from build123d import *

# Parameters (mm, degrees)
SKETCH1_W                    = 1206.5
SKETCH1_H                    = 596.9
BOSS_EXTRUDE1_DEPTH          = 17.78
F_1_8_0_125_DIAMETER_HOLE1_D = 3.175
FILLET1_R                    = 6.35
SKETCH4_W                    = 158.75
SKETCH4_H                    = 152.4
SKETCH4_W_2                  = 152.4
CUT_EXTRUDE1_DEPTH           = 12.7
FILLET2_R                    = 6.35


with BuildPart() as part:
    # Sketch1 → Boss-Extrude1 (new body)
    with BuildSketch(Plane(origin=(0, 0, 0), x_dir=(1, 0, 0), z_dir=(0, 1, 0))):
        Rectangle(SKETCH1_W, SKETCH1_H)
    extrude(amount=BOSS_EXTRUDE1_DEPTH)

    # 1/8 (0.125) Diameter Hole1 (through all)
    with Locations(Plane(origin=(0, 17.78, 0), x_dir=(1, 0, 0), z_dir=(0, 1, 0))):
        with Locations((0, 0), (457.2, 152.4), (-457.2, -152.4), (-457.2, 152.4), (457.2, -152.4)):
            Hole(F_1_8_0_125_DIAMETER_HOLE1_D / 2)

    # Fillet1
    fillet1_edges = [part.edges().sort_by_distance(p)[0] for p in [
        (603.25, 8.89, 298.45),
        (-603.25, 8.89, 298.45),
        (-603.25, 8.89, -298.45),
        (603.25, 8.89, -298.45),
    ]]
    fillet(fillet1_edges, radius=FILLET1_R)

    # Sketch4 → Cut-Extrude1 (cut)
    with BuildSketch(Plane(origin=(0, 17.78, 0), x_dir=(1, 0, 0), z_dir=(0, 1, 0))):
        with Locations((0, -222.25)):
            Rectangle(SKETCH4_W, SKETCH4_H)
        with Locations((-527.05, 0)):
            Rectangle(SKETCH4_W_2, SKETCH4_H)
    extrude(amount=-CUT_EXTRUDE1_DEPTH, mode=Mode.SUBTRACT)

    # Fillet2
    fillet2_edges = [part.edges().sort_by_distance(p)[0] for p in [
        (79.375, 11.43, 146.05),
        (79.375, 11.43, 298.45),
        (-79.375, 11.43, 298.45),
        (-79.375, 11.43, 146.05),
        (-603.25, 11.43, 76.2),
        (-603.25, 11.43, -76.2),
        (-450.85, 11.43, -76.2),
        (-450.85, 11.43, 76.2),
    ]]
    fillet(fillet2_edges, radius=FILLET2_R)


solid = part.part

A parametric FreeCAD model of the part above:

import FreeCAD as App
import Part
import Sketcher
from FreeCAD import Vector
Q = App.Units.Quantity


def edges_at(feature, points):
    """Names of the edges that pass closest to the given points."""
    edges = feature.Shape.Edges
    near = lambda p: min(range(len(edges)), key=lambda i: edges[i].distToShape(Part.Vertex(*p))[0])
    return sorted({f"Edge{near(p) + 1}" for p in points})

doc = App.newDocument("Part")
body = doc.addObject("PartDesign::Body", "Body")

sketch1 = doc.addObject("Sketcher::SketchObject", "Sketch")
body.addObject(sketch1)
sketch1.AttachmentSupport = (doc.XZ_Plane, [""])
sketch1.MapMode = "FlatFace"
sketch1.addGeometry([
    Part.LineSegment(Vector(-603.25, -298.45, 0), Vector(-603.25, 298.45, 0)),
    Part.LineSegment(Vector(-603.25, 298.45, 0), Vector(603.25, 298.45, 0)),
    Part.LineSegment(Vector(603.25, 298.45, 0), Vector(603.25, -298.45, 0)),
    Part.LineSegment(Vector(603.25, -298.45, 0), Vector(-603.25, -298.45, 0)),
], False)
sketch1.addConstraint([
    Sketcher.Constraint("Coincident", 0, 2, 1, 1),
    Sketcher.Constraint("Coincident", 1, 2, 2, 1),
    Sketcher.Constraint("Coincident", 2, 2, 3, 1),
    Sketcher.Constraint("Coincident", 3, 2, 0, 1),
    Sketcher.Constraint("Vertical", 0),
    Sketcher.Constraint("Horizontal", 1),
    Sketcher.Constraint("Vertical", 2),
    Sketcher.Constraint("Horizontal", 3),
    Sketcher.Constraint("Symmetric", 0, 2, 2, 2, -1, 1),
    Sketcher.Constraint("DistanceX", 1, 1, 1, 2, Q("47.5 in")),
    Sketcher.Constraint("DistanceY", 0, 1, 0, 2, Q("23.5 in")),
])
pad1 = doc.addObject("PartDesign::Pad", "Pad")
body.addObject(pad1)
pad1.Profile = sketch1
pad1.Length = Q("0.7 in")
pad1.Reversed = True

sketch2 = doc.addObject("Sketcher::SketchObject", "Sketch001")
body.addObject(sketch2)
sketch2.AttachmentSupport = (doc.XZ_Plane, [""])
sketch2.MapMode = "FlatFace"
sketch2.AttachmentOffset = App.Placement(Vector(0, 0, -0.7 * 25.4), App.Rotation())
sketch2.addGeometry([
    Part.Circle(Vector(0, 0, 0), Vector(0, 0, 1), 1.5875),
    Part.Circle(Vector(457.2, -152.4, 0), Vector(0, 0, 1), 1.5875),
    Part.Circle(Vector(-457.2, 152.4, 0), Vector(0, 0, 1), 1.5875),
    Part.Circle(Vector(-457.2, -152.4, 0), Vector(0, 0, 1), 1.5875),
    Part.Circle(Vector(457.2, 152.4, 0), Vector(0, 0, 1), 1.5875),
], False)
sketch2.addConstraint([
    Sketcher.Constraint("Coincident", 0, 3, -1, 1),
    Sketcher.Constraint("Equal", 0, 1),
    Sketcher.Constraint("Equal", 1, 2),
    Sketcher.Constraint("Equal", 2, 3),
    Sketcher.Constraint("Equal", 3, 4),
    Sketcher.Constraint("Symmetric", 1, 3, 2, 3, -1, 1),
    Sketcher.Constraint("Symmetric", 3, 3, 4, 3, -1, 1),
    Sketcher.Constraint("Symmetric", 1, 3, 3, 3, -2),
    Sketcher.Constraint("Diameter", 0, Q("0.125 in")),
    Sketcher.Constraint("DistanceX", -1, 1, 1, 3, Q("18 in")),
    Sketcher.Constraint("DistanceY", 1, 3, -1, 1, Q("6 in")),
])
doc.recompute()
hole = doc.addObject("PartDesign::Hole", "Hole")
body.addObject(hole)
hole.Profile = sketch2
hole.ThreadType = "None"
hole.Diameter = Q("0.125 in")
hole.DepthType = "ThroughAll"
hole.Reversed = True
doc.recompute()

fillet = doc.addObject("PartDesign::Fillet", "Fillet")
body.addObject(fillet)
fillet.Base = (hole, edges_at(hole, [
    (603.25, 8.89, 298.45),
    (-603.25, 8.89, 298.45),
    (-603.25, 8.89, -298.45),
    (603.25, 8.89, -298.45),
]))
fillet.Radius = Q("0.25 in")

sketch3 = doc.addObject("Sketcher::SketchObject", "Sketch002")
body.addObject(sketch3)
sketch3.AttachmentSupport = (doc.XZ_Plane, [""])
sketch3.MapMode = "FlatFace"
sketch3.AttachmentOffset = App.Placement(Vector(0, 0, -0.7 * 25.4), App.Rotation())
sketch3.addGeometry([
    Part.LineSegment(Vector(-79.375, 146.05, 0), Vector(-79.375, 298.45, 0)),
    Part.LineSegment(Vector(-79.375, 298.45, 0), Vector(79.375, 298.45, 0)),
    Part.LineSegment(Vector(79.375, 298.45, 0), Vector(79.375, 146.05, 0)),
    Part.LineSegment(Vector(79.375, 146.05, 0), Vector(-79.375, 146.05, 0)),
    Part.LineSegment(Vector(-603.25, -76.2, 0), Vector(-603.25, 76.2, 0)),
    Part.LineSegment(Vector(-603.25, 76.2, 0), Vector(-450.85, 76.2, 0)),
    Part.LineSegment(Vector(-450.85, 76.2, 0), Vector(-450.85, -76.2, 0)),
    Part.LineSegment(Vector(-450.85, -76.2, 0), Vector(-603.25, -76.2, 0)),
], False)
sketch3.addConstraint([
    Sketcher.Constraint("Coincident", 0, 2, 1, 1),
    Sketcher.Constraint("Coincident", 1, 2, 2, 1),
    Sketcher.Constraint("Coincident", 2, 2, 3, 1),
    Sketcher.Constraint("Coincident", 3, 2, 0, 1),
    Sketcher.Constraint("Coincident", 4, 2, 5, 1),
    Sketcher.Constraint("Coincident", 5, 2, 6, 1),
    Sketcher.Constraint("Coincident", 6, 2, 7, 1),
    Sketcher.Constraint("Coincident", 7, 2, 4, 1),
    Sketcher.Constraint("Vertical", 0),
    Sketcher.Constraint("Horizontal", 1),
    Sketcher.Constraint("Vertical", 2),
    Sketcher.Constraint("Horizontal", 3),
    Sketcher.Constraint("Vertical", 4),
    Sketcher.Constraint("Horizontal", 5),
    Sketcher.Constraint("Vertical", 6),
    Sketcher.Constraint("Horizontal", 7),
    Sketcher.Constraint("Equal", 7, 0),
    Sketcher.Constraint("Equal", 2, 4),
    Sketcher.Constraint("DistanceX", 5, 1, 5, 2, Q("6 in")),
    Sketcher.Constraint("DistanceY", -1, 1, 4, 2, Q("3 in")),
    Sketcher.Constraint("DistanceX", 1, 1, 1, 2, Q("6.25 in")),
    Sketcher.Constraint("DistanceY", -1, 1, 0, 2, Q("11.75 in")),
    Sketcher.Constraint("DistanceX", 4, 2, -1, 1, Q("23.75 in")),
    Sketcher.Constraint("DistanceX", 0, 2, -1, 1, Q("3.125 in")),
])
pocket1 = doc.addObject("PartDesign::Pocket", "Pocket")
body.addObject(pocket1)
pocket1.Profile = sketch3
pocket1.Length = Q("0.5 in")
pocket1.Reversed = True
doc.recompute()

fillet2 = doc.addObject("PartDesign::Fillet", "Fillet001")
body.addObject(fillet2)
fillet2.Base = (pocket1, edges_at(pocket1, [
    (79.375, 11.43, 146.05),
    (79.375, 11.43, 298.45),
    (-79.375, 11.43, 298.45),
    (-79.375, 11.43, 146.05),
    (-603.25, 11.43, 76.2),
    (-603.25, 11.43, -76.2),
    (-450.85, 11.43, -76.2),
    (-450.85, 11.43, 76.2),
]))
fillet2.Radius = Q("0.25 in")

doc.recompute()
